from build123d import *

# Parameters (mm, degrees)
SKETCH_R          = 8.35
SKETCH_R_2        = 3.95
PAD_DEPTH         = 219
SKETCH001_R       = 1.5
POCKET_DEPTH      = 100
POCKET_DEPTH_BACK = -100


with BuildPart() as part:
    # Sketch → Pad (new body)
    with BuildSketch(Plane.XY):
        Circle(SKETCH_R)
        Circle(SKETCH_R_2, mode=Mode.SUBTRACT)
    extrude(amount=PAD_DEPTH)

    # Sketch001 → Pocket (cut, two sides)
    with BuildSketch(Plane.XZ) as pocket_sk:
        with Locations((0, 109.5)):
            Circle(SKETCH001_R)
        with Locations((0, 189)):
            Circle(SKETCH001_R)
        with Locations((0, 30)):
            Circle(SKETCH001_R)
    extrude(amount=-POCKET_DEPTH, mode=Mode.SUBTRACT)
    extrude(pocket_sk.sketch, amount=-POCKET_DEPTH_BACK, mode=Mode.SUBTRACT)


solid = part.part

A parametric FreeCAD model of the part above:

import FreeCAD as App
import Part
import Sketcher
from FreeCAD import Vector

doc = App.newDocument("Part")
params = doc.addObject("Spreadsheet::Sheet", "Params")
for row, (alias, value) in enumerate([
    ("sketch1_diameter", "16.7 mm"),
    ("sketch1_diameter2", "7.9 mm"),
    ("pad1_length", "219 mm"),
    ("sketch2_diameter", "3 mm"),
], start=1):
    params.set(f"A{row}", alias)
    params.set(f"B{row}", "=" + value)
    params.setAlias(f"B{row}", alias)

body = doc.addObject("PartDesign::Body", "Body")

sketch1 = body.newObject("Sketcher::SketchObject", "Sketch")
sketch1.AttachmentSupport = (doc.getObject("XY_Plane"), [""])
sketch1.MapMode = "FlatFace"
sketch1.addGeometry([
    Part.Circle(Vector(0, 0, 0), Vector(0, 0, 1), 8.3),
    Part.Circle(Vector(0, 0, 0), Vector(0, 0, 1), 4),
], False)
sketch1.addConstraint([
    Sketcher.Constraint("Coincident", 0, 3, -1, 1),
    Sketcher.Constraint("Coincident", 1, 3, -1, 1),
    Sketcher.Constraint("Diameter", 0, 16.7),
    Sketcher.Constraint("Diameter", 1, 7.9),
])
sketch1.setExpression("Constraints[2]", "Params.sketch1_diameter")
sketch1.setExpression("Constraints[3]", "Params.sketch1_diameter2")
pad1 = body.newObject("PartDesign::Pad", "Pad")
pad1.Profile = sketch1
pad1.setExpression("Length", "Params.pad1_length")

sketch2 = body.newObject("Sketcher::SketchObject", "Sketch001")
sketch2.AttachmentSupport = (doc.getObject("XZ_Plane"), [""])
sketch2.MapMode = "FlatFace"
sketch2.addGeometry([
    Part.Circle(Vector(0, 109.5, 0), Vector(0, 0, 1), 1.5),
    Part.Circle(Vector(0, 189, 0), Vector(0, 0, 1), 1.5),
    Part.Circle(Vector(0, 30, 0), Vector(0, 0, 1), 1.5),
], False)
sketch2.addConstraint([
    Sketcher.Constraint("Equal", 0, 1),
    Sketcher.Constraint("Equal", 1, 2),
    Sketcher.Constraint("PointOnObject", 0, 3, -2),
    Sketcher.Constraint("PointOnObject", 1, 3, -2),
    Sketcher.Constraint("PointOnObject", 2, 3, -2),
    Sketcher.Constraint("Diameter", 0, 3.0),
    Sketcher.Constraint("DistanceY", -1, 1, 1, 3, 189.0),
    Sketcher.Constraint("DistanceY", -1, 1, 2, 3, 30.0),
    Sketcher.Constraint("DistanceY", -1, 1, 0, 3, 109.5),
])
sketch2.setExpression("Constraints[5]", "Params.sketch2_diameter")
pocket1 = body.newObject("PartDesign::Pocket", "Pocket")
pocket1.Profile = sketch2
pocket1.Type = "ThroughAll"
pocket1.Midplane = True

doc.recompute()
